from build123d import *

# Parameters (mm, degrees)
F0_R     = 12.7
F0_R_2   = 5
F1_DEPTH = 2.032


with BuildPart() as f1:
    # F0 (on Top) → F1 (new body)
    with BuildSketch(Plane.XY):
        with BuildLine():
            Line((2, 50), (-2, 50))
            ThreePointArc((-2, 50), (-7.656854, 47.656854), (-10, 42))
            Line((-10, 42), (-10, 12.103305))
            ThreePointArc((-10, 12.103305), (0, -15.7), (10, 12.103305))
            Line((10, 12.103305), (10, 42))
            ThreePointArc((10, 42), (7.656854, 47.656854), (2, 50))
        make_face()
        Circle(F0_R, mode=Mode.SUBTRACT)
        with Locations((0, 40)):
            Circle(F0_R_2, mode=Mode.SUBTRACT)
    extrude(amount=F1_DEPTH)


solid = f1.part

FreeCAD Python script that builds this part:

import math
import FreeCAD as App
import Part
import Sketcher

V = App.Vector
Q = App.Units.Quantity

doc = App.newDocument("Part")
params = doc.addObject("Spreadsheet::Sheet", "Params")
for row, (alias, value) in enumerate([
    ("sketch1_diameter", "10 mm"),
    ("sketch1_radius", "8.000001 mm"),
    ("sketch1_diameter2", "25.4 mm"),
    ("sketch1_radius2", "15.7 mm"),
    ("sketch1_width", "4 mm"),
    ("pad1_length", "2.032 mm"),
], start=1):
    params.set(f"A{row}", alias)
    params.set(f"B{row}", "=" + value)
    params.setAlias(f"B{row}", alias)

body = doc.addObject("PartDesign::Body", "Body")

sketch1 = body.newObject("Sketcher::SketchObject", "Sketch")
sketch1.AttachmentSupport = (doc.getObject("XY_Plane"), [""])
sketch1.MapMode = "FlatFace"
sketch1.addGeometry([
    Part.LineSegment(V(2, 50, 0), V(-2, 50, 0)),
    Part.ArcOfCircle(Part.Circle(V(-2, 42, 0), V(0, 0, 1), 8), math.radians(90), math.radians(180)),
    Part.LineSegment(V(-10, 42, 0), V(-10, 12.1, 0)),
    Part.ArcOfCircle(Part.Circle(V(0, 0, 0), V(0, 0, 1), 15.7), math.radians(130), math.radians(410)),
    Part.LineSegment(V(10, 12.1, 0), V(10, 42, 0)),
    Part.ArcOfCircle(Part.Circle(V(2, 42, 0), V(0, 0, 1), 8), math.radians(0), math.radians(90)),
    Part.Circle(V(0, 0, 0), V(0, 0, 1), 12.7),
    Part.Circle(V(0, 40, 0), V(0, 0, 1), 5),
], False)
sketch1.addConstraint([
    Sketcher.Constraint("Tangent", 0, 2, 1, 1),
    Sketcher.Constraint("Tangent", 1, 2, 2, 1),
    Sketcher.Constraint("Coincident", 2, 2, 3, 1),
    Sketcher.Constraint("Coincident", 3, 2, 4, 1),
    Sketcher.Constraint("Tangent", 4, 2, 5, 1),
    Sketcher.Constraint("Tangent", 5, 2, 0, 1),
    Sketcher.Constraint("Horizontal", 0),
    Sketcher.Constraint("Vertical", 2),
    Sketcher.Constraint("Vertical", 4),
    Sketcher.Constraint("Coincident", 3, 3, -1, 1),
    Sketcher.Constraint("Coincident", 6, 3, -1, 1),
    Sketcher.Constraint("Equal", 1, 5),
    Sketcher.Constraint("PointOnObject", 7, 3, -2),
    Sketcher.Constraint("Horizontal", 2, 2, 3, 2),
    Sketcher.Constraint("Diameter", 7, Q("10 mm")),
    Sketcher.Constraint("Radius", 1, Q("8.000001 mm")),
    Sketcher.Constraint("Diameter", 6, Q("25.4 mm")),
    Sketcher.Constraint("Radius", 3, Q("15.7 mm")),
    Sketcher.Constraint("DistanceX", 0, 2, 0, 1, Q("4 mm")),
    Sketcher.Constraint("DistanceY", -1, 1, 1, 3, Q("41.999999 mm")),
    Sketcher.Constraint("DistanceY", -1, 1, 7, 3, Q("40 mm")),
])
sketch1.setExpression("Constraints[14]", "Params.sketch1_diameter")
sketch1.setExpression("Constraints[15]", "Params.sketch1_radius")
sketch1.setExpression("Constraints[16]", "Params.sketch1_diameter2")
sketch1.setExpression("Constraints[17]", "Params.sketch1_radius2")
sketch1.setExpression("Constraints[18]", "Params.sketch1_width")
pad1 = body.newObject("PartDesign::Pad", "Pad")
pad1.Profile = sketch1
pad1.setExpression("Length", "Params.pad1_length")

doc.recompute()
